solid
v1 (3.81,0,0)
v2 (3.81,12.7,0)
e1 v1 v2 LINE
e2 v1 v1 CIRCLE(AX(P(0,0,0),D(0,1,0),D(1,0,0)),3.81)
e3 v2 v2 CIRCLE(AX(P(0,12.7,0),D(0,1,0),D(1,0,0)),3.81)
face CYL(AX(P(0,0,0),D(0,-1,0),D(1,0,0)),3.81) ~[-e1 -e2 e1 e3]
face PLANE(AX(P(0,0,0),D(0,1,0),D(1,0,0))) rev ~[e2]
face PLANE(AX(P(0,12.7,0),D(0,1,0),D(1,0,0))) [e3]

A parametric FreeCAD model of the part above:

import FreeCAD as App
import Part
import Sketcher
Q = App.Units.Quantity

doc = App.newDocument("Part")
body = doc.addObject("PartDesign::Body", "Body")

# Sketch on XZ plane
sketch1 = body.newObject("Sketcher::SketchObject", "Sketch")
sketch1.AttachmentSupport = (doc.getObject("XZ_Plane"), [""])
sketch1.MapMode = "FlatFace"
sketch1.addGeometry(Part.Circle(App.Vector(0, 0, 0), App.Vector(0, 0, 1), 3.81), False)
sketch1.addConstraint([
    Sketcher.Constraint("Coincident", 0, 3, -1, 1),
    Sketcher.Constraint("Diameter", 0, Q("0.3 in")),
])
pad1 = body.newObject("PartDesign::Pad", "Pad")
pad1.Profile = sketch1
pad1.Length = Q("0.5 in")
pad1.Reversed = True

doc.recompute()
